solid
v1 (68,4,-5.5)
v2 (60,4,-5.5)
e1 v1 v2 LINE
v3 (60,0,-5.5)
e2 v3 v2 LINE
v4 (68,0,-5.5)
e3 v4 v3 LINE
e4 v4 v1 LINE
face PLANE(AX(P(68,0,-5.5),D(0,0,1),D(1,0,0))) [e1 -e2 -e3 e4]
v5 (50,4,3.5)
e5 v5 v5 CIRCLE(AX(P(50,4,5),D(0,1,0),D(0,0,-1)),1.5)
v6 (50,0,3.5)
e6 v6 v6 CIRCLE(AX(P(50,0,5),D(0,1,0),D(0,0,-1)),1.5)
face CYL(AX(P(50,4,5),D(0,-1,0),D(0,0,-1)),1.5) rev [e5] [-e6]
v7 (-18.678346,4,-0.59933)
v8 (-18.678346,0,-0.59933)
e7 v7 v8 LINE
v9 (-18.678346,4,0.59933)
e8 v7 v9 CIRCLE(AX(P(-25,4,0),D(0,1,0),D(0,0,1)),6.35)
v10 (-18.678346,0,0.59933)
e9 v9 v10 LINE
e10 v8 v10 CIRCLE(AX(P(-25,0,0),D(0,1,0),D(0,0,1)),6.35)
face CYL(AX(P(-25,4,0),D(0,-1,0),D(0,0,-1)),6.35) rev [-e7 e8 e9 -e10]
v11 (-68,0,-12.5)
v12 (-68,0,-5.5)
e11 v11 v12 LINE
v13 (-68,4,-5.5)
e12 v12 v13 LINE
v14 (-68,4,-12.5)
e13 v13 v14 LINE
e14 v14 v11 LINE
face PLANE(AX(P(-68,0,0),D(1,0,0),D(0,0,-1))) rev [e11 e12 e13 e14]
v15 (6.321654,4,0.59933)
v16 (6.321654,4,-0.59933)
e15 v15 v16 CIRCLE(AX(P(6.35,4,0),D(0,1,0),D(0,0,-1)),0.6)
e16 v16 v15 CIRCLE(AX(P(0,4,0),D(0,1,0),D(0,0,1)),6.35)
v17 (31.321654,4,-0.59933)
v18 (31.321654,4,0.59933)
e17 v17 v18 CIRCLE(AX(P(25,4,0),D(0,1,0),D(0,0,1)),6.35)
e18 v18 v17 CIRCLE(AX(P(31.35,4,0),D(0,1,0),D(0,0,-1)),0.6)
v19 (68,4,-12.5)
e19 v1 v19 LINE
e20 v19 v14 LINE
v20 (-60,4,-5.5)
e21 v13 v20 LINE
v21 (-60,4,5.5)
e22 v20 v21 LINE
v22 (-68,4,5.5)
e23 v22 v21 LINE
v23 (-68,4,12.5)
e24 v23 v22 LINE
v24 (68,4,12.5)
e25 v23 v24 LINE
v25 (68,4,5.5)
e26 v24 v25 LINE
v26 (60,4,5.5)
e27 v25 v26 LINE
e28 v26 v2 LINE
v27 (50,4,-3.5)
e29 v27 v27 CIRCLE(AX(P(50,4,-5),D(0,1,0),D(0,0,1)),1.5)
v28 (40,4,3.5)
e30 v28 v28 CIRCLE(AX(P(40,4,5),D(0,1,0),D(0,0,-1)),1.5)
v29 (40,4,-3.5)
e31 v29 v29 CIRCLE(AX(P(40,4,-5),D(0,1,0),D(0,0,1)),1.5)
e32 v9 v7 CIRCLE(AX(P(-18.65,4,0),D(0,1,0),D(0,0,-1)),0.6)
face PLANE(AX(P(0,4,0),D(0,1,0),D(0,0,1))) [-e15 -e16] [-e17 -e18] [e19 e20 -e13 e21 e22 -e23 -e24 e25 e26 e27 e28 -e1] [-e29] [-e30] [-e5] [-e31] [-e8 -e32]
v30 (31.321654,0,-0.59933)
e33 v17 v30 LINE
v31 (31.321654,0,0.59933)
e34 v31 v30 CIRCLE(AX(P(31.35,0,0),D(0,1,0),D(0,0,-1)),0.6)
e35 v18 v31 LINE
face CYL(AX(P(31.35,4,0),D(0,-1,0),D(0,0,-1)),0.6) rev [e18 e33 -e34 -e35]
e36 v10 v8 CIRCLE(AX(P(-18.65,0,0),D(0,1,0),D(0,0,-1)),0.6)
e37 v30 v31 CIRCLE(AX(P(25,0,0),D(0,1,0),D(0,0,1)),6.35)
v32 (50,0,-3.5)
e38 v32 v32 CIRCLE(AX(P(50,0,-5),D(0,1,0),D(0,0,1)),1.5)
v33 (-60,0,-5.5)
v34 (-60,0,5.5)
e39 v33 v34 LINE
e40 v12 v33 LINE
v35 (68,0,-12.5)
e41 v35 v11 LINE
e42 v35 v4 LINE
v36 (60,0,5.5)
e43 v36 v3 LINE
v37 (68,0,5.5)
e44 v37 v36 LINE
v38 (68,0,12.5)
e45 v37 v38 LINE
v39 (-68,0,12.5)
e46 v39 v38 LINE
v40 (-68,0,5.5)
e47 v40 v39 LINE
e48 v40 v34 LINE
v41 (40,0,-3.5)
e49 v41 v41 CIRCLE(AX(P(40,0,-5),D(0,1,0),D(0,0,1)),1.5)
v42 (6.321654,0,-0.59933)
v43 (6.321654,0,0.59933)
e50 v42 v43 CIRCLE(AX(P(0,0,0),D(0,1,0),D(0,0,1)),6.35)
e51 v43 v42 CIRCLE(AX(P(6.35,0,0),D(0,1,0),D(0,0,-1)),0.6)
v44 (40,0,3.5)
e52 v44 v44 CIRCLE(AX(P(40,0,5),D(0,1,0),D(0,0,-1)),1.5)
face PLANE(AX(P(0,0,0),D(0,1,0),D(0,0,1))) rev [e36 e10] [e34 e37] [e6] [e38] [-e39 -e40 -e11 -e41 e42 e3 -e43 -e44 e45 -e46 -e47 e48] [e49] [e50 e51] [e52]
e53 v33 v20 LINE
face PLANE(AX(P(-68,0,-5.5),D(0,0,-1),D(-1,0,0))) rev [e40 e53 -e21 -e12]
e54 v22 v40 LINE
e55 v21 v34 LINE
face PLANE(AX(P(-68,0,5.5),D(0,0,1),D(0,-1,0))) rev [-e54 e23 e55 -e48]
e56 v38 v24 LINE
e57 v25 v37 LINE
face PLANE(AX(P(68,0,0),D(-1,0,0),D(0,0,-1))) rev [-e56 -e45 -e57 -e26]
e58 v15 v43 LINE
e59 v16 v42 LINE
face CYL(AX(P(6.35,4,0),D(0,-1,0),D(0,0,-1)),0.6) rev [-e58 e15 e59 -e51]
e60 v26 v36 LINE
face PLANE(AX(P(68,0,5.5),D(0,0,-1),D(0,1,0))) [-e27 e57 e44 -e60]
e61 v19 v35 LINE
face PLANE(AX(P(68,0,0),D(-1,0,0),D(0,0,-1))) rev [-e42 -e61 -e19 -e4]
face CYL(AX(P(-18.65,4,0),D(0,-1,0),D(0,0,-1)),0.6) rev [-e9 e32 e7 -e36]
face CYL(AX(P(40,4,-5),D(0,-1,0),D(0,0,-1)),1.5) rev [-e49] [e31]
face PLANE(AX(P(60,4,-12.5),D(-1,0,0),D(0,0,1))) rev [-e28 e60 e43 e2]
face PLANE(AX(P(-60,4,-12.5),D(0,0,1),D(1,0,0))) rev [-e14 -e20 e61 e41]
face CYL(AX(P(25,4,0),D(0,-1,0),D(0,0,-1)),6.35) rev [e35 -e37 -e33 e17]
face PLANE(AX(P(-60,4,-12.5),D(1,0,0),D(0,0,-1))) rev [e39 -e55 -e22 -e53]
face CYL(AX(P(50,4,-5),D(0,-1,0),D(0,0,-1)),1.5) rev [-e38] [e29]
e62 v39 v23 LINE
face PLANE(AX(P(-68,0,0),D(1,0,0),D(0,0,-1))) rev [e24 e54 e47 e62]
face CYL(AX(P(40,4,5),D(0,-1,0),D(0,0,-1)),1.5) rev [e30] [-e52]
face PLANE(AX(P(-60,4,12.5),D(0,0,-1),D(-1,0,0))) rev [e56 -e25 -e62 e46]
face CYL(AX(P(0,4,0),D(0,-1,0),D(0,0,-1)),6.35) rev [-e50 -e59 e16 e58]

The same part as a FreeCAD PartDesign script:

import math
import FreeCAD as App
import Part
import Sketcher
from FreeCAD import Vector
Q = App.Units.Quantity


def add_polygon(sketch, points):
    """Adds a closed chain of lines whose ends are joined by coincident constraints."""
    first, n = sketch.GeometryCount, len(points)
    for a, b in zip(points, points[1:] + points[:1]):
        sketch.addGeometry(Part.LineSegment(App.Vector(*a, 0), App.Vector(*b, 0)), False)
    for i in range(n):
        sketch.addConstraint(Sketcher.Constraint("Coincident", first + i, 2, first + (i + 1) % n, 1))

doc = App.newDocument("Part")
params = doc.addObject("Spreadsheet::Sheet", "Params")
for row, (alias, value) in enumerate([
    ("sketch1_diameter", "3 mm"),
    ("sketch1_radius", "0.6 mm"),
    ("sketch1_width", "120 mm"),
    ("sketch1_height", "25 mm"),
    ("sketch1_radius2", "6.35 mm"),
    ("pad1_length", "4 mm"),
    ("sketch2_width", "4 mm"),
    ("sketch2_height", "7 mm"),
    ("pad2_length", "8 mm"),
], start=1):
    params.set(f"A{row}", alias)
    params.set(f"B{row}", "=" + value)
    params.setAlias(f"B{row}", alias)

body = doc.addObject("PartDesign::Body", "Body")

sketch1 = doc.addObject("Sketcher::SketchObject", "Sketch")
body.addObject(sketch1)
sketch1.AttachmentSupport = (doc.XZ_Plane, [""])
sketch1.MapMode = "FlatFace"
add_polygon(sketch1, [(-60, -12.5), (-60, 12.5), (60, 12.5), (60, -12.5)])
sketch1.addGeometry(Part.Circle(Vector(40, 5, 0), Vector(0, 0, 1), 1.5), False)
sketch1.addGeometry(Part.Circle(Vector(50, 5, 0), Vector(0, 0, 1), 1.5), False)
sketch1.addGeometry(Part.ArcOfCircle(Part.Circle(Vector(-25, 0, 0), Vector(0, 0, 1), 6.3), math.radians(5), math.radians(355)), False)
sketch1.addGeometry(Part.ArcOfCircle(Part.Circle(Vector(-18.6, 0, 0), Vector(0, 0, 1), 0.6), math.radians(-93), math.radians(93)), False)
sketch1.addGeometry(Part.ArcOfCircle(Part.Circle(Vector(0, 0, 0), Vector(0, 0, 1), 6.3), math.radians(5), math.radians(355)), False)
sketch1.addGeometry(Part.ArcOfCircle(Part.Circle(Vector(6.3, 0, 0), Vector(0, 0, 1), 0.6), math.radians(-93), math.radians(93)), False)
sketch1.addGeometry(Part.ArcOfCircle(Part.Circle(Vector(25, 0, 0), Vector(0, 0, 1), 6.3), math.radians(5), math.radians(355)), False)
sketch1.addGeometry(Part.ArcOfCircle(Part.Circle(Vector(31.4, 0, 0), Vector(0, 0, 1), 0.6), math.radians(-93), math.radians(93)), False)
sketch1.addGeometry(Part.Circle(Vector(40, -5, 0), Vector(0, 0, 1), 1.5), False)
sketch1.addGeometry(Part.Circle(Vector(50, -5, 0), Vector(0, 0, 1), 1.5), False)
sketch1.addConstraint([
    Sketcher.Constraint("Coincident", 6, 1, 7, 2),
    Sketcher.Constraint("Coincident", 7, 1, 6, 2),
    Sketcher.Constraint("Coincident", 8, 1, 9, 2),
    Sketcher.Constraint("Coincident", 9, 1, 8, 2),
    Sketcher.Constraint("Coincident", 10, 1, 11, 2),
    Sketcher.Constraint("Coincident", 11, 1, 10, 2),
    Sketcher.Constraint("Vertical", 0),
    Sketcher.Constraint("Horizontal", 1),
    Sketcher.Constraint("Vertical", 2),
    Sketcher.Constraint("Horizontal", 3),
    Sketcher.Constraint("Coincident", 8, 3, -1, 1),
    Sketcher.Constraint("Equal", 4, 5),
    Sketcher.Constraint("Equal", 6, 8),
    Sketcher.Constraint("Equal", 7, 9),
    Sketcher.Constraint("Equal", 8, 10),
    Sketcher.Constraint("Equal", 9, 11),
    Sketcher.Constraint("Equal", 5, 12),
    Sketcher.Constraint("Equal", 12, 13),
    Sketcher.Constraint("Symmetric", 6, 3, 10, 3, -1, 1),
    Sketcher.Constraint("Symmetric", 0, 2, 2, 2, -1, 1),
    Sketcher.Constraint("Symmetric", 4, 3, 12, 3, -1),
    Sketcher.Constraint("Symmetric", 5, 3, 13, 3, -1),
    Sketcher.Constraint("Symmetric", 6, 1, 7, 1, -1),
    Sketcher.Constraint("PointOnObject", 9, 3, -1),
    Sketcher.Constraint("PointOnObject", 11, 3, -1),
    Sketcher.Constraint("Horizontal", 4, 3, 5, 3),
    Sketcher.Constraint("Horizontal", 6, 1, 8, 1),
    Sketcher.Constraint("Horizontal", 8, 1, 10, 1),
    Sketcher.Constraint("Diameter", 4, Q("3 mm")),
    Sketcher.Constraint("Radius", 7, Q("0.6 mm")),
    Sketcher.Constraint("DistanceX", 1, 1, 1, 2, Q("120 mm")),
    Sketcher.Constraint("DistanceY", 0, 1, 0, 2, Q("25 mm")),
    Sketcher.Constraint("Radius", 6, Q("6.35 mm")),
    Sketcher.Constraint("DistanceX", -1, 1, 4, 3, Q("40 mm")),
    Sketcher.Constraint("DistanceY", -1, 1, 4, 3, Q("5 mm")),
    Sketcher.Constraint("DistanceX", -1, 1, 5, 3, Q("50 mm")),
    Sketcher.Constraint("DistanceX", 6, 3, -1, 1, Q("25 mm")),
    Sketcher.Constraint("DistanceX", 7, 3, -1, 1, Q("18.65 mm")),
])
sketch1.setExpression("Constraints[32]", "Params.sketch1_diameter")
sketch1.setExpression("Constraints[33]", "Params.sketch1_radius")
sketch1.setExpression("Constraints[34]", "Params.sketch1_width")
sketch1.setExpression("Constraints[35]", "Params.sketch1_height")
sketch1.setExpression("Constraints[36]", "Params.sketch1_radius2")
pad1 = doc.addObject("PartDesign::Pad", "Pad")
body.addObject(pad1)
pad1.Profile = sketch1
pad1.setExpression("Length", "Params.pad1_length")
pad1.Reversed = True

sketch2 = doc.addObject("Sketcher::SketchObject", "Sketch001")
body.addObject(sketch2)
sketch2.AttachmentSupport = (doc.YZ_Plane, [""])
sketch2.MapMode = "FlatFace"
sketch2.AttachmentOffset = App.Placement(Vector(0, 0, -60), App.Rotation())
add_polygon(sketch2, [(4, -12.5), (0, -12.5), (0, -5.5), (4, -5.5)])
add_polygon(sketch2, [(4, 5.5), (0, 5.5), (0, 12.5), (4, 12.5)])
sketch2.addConstraint([
    Sketcher.Constraint("Horizontal", 0),
    Sketcher.Constraint("Vertical", 1),
    Sketcher.Constraint("Horizontal", 2),
    Sketcher.Constraint("Vertical", 3),
    Sketcher.Constraint("Horizontal", 4),
    Sketcher.Constraint("Vertical", 5),
    Sketcher.Constraint("Horizontal", 6),
    Sketcher.Constraint("Vertical", 7),
    Sketcher.Constraint("Symmetric", 1, 2, 4, 2, -1, 1),
    Sketcher.Constraint("Symmetric", 0, 2, 5, 2, -1),
    Sketcher.Constraint("Vertical", 3, 2, 6, 2),
    Sketcher.Constraint("DistanceX", 0, 2, 0, 1, Q("4 mm")),
    Sketcher.Constraint("DistanceY", 1, 1, 1, 2, Q("7 mm")),
    Sketcher.Constraint("DistanceY", 1, 2, 4, 2, Q("11 mm")),
])
sketch2.setExpression("Constraints[19]", "Params.sketch2_width")
sketch2.setExpression("Constraints[20]", "Params.sketch2_height")
pad2 = doc.addObject("PartDesign::Pad", "Pad001")
body.addObject(pad2)
pad2.Profile = sketch2
pad2.setExpression("Length", "Params.pad2_length")
pad2.Reversed = True
doc.recompute()

mirrored = doc.addObject("PartDesign::Mirrored", "Mirrored")
body.addObject(mirrored)
mirrored.Originals = [pad2]
mirrored.MirrorPlane = (doc.YZ_Plane, [""])
body.Tip = mirrored

doc.recompute()
